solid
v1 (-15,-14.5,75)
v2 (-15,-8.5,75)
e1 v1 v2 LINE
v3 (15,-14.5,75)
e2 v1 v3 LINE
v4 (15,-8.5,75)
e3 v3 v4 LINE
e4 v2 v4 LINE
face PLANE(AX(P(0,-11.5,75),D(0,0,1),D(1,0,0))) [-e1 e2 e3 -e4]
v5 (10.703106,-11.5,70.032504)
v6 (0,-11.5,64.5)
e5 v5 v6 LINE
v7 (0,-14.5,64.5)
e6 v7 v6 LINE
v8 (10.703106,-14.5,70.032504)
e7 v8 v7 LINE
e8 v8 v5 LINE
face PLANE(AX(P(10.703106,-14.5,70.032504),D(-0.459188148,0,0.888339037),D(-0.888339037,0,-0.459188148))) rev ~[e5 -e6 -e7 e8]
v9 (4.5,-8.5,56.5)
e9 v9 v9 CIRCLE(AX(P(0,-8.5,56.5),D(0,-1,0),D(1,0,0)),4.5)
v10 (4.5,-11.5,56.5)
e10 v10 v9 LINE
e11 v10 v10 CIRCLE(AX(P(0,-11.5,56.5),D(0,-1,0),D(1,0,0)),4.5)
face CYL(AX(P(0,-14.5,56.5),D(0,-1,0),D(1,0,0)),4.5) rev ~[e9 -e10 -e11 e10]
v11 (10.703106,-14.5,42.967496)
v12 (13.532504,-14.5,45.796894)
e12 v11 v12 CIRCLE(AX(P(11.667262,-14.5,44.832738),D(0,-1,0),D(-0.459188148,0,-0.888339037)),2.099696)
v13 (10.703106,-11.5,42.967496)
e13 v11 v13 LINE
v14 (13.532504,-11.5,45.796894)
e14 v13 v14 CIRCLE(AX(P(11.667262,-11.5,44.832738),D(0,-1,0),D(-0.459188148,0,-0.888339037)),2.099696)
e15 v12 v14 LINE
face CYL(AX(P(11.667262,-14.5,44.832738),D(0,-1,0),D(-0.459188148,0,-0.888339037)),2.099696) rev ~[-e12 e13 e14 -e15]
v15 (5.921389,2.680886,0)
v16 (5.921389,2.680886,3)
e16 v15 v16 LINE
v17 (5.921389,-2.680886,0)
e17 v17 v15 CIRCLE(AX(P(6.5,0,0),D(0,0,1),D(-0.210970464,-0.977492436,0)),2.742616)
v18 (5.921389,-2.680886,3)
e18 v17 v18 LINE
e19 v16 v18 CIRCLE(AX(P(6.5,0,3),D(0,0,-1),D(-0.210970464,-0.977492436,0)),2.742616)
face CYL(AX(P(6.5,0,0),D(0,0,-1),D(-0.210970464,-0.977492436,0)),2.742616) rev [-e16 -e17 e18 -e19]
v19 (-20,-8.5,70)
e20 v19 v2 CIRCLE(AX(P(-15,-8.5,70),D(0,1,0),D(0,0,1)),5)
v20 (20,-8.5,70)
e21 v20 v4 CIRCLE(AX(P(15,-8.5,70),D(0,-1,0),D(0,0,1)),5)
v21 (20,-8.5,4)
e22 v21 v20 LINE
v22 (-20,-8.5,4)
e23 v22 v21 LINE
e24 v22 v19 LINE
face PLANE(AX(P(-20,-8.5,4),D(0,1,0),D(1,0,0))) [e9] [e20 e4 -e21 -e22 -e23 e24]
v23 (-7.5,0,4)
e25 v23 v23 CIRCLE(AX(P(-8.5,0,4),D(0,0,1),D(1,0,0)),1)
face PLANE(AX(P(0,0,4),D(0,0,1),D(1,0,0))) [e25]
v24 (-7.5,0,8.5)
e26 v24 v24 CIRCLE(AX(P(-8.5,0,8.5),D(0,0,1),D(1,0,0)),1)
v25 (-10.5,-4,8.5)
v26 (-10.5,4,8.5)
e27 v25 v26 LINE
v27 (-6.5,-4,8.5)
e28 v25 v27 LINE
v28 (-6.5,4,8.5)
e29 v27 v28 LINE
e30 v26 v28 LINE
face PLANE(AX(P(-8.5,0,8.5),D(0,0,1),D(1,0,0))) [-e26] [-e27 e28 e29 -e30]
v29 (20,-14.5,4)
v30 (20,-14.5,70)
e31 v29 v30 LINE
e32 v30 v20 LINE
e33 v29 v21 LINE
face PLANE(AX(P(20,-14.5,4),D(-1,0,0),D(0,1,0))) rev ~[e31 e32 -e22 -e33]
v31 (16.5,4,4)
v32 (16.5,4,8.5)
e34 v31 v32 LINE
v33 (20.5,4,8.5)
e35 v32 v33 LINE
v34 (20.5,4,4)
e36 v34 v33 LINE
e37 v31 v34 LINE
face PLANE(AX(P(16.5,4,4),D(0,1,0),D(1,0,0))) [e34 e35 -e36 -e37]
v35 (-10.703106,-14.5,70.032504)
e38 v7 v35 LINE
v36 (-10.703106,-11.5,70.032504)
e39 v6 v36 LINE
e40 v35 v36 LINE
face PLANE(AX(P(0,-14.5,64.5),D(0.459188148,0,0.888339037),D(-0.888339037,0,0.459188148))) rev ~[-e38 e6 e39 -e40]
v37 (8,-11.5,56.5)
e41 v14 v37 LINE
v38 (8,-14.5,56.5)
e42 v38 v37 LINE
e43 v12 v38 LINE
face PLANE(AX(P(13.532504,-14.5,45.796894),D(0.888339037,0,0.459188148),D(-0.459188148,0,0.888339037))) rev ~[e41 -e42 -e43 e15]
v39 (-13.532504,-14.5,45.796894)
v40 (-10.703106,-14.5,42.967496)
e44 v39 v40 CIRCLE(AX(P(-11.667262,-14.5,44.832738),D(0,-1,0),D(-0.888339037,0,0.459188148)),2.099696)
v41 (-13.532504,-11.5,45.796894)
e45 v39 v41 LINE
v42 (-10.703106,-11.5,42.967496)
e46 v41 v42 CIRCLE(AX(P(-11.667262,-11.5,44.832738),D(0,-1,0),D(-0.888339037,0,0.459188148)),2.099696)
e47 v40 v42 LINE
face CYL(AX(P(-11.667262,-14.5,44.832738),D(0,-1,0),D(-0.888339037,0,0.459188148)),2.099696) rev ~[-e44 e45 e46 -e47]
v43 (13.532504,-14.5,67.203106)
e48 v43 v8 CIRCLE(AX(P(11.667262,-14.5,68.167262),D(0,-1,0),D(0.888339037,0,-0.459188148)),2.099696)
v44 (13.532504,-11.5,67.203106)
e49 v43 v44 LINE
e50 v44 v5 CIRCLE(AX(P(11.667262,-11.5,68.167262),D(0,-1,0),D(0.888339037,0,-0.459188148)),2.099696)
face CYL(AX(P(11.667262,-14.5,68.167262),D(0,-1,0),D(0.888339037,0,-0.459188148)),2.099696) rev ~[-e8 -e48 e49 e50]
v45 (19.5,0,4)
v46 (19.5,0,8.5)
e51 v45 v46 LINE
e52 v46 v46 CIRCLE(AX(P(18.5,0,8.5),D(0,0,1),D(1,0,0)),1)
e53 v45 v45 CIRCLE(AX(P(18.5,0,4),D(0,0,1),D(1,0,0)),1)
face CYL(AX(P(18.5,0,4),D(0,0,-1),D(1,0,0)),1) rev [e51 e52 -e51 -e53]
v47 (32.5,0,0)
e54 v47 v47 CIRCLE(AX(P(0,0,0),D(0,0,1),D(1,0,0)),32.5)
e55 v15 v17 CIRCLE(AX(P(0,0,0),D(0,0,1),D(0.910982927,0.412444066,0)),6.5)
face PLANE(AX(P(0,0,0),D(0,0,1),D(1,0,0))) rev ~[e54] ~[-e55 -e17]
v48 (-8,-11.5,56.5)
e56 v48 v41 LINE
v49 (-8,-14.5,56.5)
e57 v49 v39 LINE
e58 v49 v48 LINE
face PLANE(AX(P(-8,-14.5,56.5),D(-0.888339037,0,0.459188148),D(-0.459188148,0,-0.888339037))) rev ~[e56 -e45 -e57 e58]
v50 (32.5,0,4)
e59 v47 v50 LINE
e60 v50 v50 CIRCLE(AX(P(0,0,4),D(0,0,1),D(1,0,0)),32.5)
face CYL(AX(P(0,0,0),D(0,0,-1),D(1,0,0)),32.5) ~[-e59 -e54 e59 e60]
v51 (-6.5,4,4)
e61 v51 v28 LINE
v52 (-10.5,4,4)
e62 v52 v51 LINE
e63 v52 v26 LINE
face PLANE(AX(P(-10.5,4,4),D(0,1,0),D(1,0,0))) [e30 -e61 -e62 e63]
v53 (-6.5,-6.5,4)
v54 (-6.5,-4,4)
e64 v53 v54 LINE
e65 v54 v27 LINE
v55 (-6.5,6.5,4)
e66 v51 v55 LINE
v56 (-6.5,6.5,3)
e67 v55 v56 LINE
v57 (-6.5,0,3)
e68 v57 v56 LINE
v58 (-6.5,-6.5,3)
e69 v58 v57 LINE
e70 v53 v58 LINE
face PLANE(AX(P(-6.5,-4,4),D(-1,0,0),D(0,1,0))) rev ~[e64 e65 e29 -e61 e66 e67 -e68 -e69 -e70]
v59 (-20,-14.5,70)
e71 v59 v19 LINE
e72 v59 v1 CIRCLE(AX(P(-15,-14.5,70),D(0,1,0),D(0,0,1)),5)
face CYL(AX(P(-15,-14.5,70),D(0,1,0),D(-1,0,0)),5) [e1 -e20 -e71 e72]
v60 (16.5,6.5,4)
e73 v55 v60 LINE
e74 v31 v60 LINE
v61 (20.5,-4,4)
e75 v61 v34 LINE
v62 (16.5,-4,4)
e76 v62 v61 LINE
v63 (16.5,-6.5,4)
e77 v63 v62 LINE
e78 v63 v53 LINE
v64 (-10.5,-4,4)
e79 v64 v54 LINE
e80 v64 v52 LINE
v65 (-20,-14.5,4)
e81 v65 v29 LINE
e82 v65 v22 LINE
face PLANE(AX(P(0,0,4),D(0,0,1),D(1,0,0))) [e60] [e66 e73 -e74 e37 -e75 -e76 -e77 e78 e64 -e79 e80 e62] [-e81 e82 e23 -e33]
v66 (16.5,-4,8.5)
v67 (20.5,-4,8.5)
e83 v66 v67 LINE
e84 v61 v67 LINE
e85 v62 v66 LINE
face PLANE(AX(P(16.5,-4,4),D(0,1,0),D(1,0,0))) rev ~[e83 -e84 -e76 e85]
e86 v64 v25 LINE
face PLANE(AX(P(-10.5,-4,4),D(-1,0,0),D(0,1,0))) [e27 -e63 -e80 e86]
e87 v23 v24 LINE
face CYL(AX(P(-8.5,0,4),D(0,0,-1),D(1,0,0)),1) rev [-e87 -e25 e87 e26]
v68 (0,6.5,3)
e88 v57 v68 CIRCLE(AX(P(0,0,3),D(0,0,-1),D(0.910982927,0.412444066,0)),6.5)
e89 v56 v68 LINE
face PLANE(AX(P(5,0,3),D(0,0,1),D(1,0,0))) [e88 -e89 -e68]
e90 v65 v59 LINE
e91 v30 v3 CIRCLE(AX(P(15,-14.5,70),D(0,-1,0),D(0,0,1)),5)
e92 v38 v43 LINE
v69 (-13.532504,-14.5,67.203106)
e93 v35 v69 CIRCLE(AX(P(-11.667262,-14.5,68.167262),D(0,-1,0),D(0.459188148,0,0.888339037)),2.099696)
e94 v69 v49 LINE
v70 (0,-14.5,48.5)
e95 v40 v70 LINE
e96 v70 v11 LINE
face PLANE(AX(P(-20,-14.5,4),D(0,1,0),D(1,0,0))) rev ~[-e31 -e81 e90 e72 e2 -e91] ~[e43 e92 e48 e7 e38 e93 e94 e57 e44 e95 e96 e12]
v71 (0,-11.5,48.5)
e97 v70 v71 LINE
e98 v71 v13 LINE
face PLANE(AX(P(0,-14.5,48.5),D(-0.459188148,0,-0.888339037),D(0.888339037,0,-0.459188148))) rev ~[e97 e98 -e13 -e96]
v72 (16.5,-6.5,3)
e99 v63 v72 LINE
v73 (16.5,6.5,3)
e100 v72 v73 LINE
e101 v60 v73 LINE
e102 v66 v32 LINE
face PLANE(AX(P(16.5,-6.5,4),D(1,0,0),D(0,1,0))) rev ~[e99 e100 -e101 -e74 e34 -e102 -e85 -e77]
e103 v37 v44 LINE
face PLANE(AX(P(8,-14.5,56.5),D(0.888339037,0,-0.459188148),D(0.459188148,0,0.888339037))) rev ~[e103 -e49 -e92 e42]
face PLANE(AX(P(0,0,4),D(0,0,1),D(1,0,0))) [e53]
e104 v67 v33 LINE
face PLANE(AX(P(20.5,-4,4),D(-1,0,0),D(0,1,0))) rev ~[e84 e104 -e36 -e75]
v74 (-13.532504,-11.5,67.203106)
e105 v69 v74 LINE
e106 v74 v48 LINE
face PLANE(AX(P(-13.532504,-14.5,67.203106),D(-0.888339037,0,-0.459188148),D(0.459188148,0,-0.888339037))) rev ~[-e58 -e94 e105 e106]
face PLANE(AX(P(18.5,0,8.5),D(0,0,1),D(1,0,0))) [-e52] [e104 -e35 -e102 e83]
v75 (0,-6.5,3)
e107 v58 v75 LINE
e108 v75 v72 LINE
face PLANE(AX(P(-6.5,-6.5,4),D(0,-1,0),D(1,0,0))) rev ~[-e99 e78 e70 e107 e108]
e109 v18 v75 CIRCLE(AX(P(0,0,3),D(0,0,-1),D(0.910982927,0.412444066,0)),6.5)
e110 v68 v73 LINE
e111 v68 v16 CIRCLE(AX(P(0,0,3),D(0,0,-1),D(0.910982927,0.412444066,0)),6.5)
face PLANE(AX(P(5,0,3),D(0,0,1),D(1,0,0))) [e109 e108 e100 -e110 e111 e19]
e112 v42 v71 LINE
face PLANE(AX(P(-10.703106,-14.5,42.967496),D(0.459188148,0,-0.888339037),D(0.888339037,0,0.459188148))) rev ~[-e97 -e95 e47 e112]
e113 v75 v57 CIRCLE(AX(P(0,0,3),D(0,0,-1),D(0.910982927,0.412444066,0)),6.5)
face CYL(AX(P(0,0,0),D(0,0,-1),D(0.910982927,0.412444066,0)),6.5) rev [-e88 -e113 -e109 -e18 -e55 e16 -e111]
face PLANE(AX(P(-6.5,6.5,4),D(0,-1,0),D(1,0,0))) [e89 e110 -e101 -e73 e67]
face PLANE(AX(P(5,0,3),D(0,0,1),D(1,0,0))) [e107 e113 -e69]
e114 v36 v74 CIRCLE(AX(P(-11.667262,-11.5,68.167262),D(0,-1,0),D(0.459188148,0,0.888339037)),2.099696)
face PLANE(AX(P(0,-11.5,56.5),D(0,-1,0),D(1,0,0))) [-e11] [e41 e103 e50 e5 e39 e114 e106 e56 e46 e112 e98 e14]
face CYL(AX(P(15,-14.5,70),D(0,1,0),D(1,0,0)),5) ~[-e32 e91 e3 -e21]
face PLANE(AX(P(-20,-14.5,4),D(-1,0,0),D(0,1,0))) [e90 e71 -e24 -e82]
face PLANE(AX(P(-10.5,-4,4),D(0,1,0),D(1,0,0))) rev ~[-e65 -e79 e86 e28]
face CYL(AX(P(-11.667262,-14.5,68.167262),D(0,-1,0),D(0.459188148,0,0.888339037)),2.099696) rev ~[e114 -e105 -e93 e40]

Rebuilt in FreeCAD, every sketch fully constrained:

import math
import FreeCAD as App
import Part
import Sketcher

V = App.Vector
Q = App.Units.Quantity


def edges_at(feature, points):
    """Names of the edges that pass closest to the given points."""
    edges = feature.Shape.Edges
    near = lambda p: min(range(len(edges)), key=lambda i: edges[i].distToShape(Part.Vertex(*p))[0])
    return sorted({f"Edge{near(p) + 1}" for p in points})


def add_polygon(sketch, points):
    """Adds a closed chain of lines whose ends are joined by coincident constraints."""
    first, n = sketch.GeometryCount, len(points)
    for a, b in zip(points, points[1:] + points[:1]):
        sketch.addGeometry(Part.LineSegment(App.Vector(*a, 0), App.Vector(*b, 0)), False)
    for i in range(n):
        sketch.addConstraint(Sketcher.Constraint("Coincident", first + i, 2, first + (i + 1) % n, 1))

doc = App.newDocument("Part")
body = doc.addObject("PartDesign::Body", "Body")

# Sketch on XY plane
sketch1 = body.newObject("Sketcher::SketchObject", "Sketch")
sketch1.AttachmentSupport = (doc.getObject("XY_Plane"), [""])
sketch1.MapMode = "FlatFace"
sketch1.addGeometry(Part.Circle(V(0, 0, 0), V(0, 0, 1), 32.5), False)
sketch1.addGeometry(Part.ArcOfCircle(Part.Circle(V(0, 0, 0), V(0, 0, 1), 6.5), math.radians(24), math.radians(336)), False)
sketch1.addGeometry(Part.ArcOfCircle(Part.Circle(V(6.5, 0, 0), V(0, 0, 1), 2.7), math.radians(-102), math.radians(102)), False)
sketch1.addConstraint(Sketcher.Constraint("Coincident", 1, 1, 2, 2))
sketch1.addConstraint(Sketcher.Constraint("Coincident", 2, 1, 1, 2))
sketch1.addConstraint(Sketcher.Constraint("Coincident", 0, 3, -1, 1))
sketch1.addConstraint(Sketcher.Constraint("Coincident", 1, 3, -1, 1))
sketch1.addConstraint(Sketcher.Constraint("PointOnObject", 2, 3, -1))
sketch1.addConstraint(Sketcher.Constraint("Diameter", 0, Q("65 mm")))
sketch1.addConstraint(Sketcher.Constraint("Radius", 1, Q("6.5 mm")))
sketch1.addConstraint(Sketcher.Constraint("DistanceX", -1, 1, 2, 3, Q("6.5 mm")))
sketch1.addConstraint(Sketcher.Constraint("Radius", 2, Q("2.742616 mm")))
pad1 = body.newObject("PartDesign::Pad", "Pad")
pad1.Profile = sketch1
pad1.Length = 4

# Sketch on XY plane
sketch2 = body.newObject("Sketcher::SketchObject", "Sketch001")
sketch2.AttachmentSupport = (doc.getObject("XY_Plane"), [""])
sketch2.MapMode = "FlatFace"
sketch2.AttachmentOffset = App.Placement(V(0, 0, 4), App.Rotation())
add_polygon(sketch2, [(-10.5, 4), (-10.5, -4), (-6.5, -4), (-6.5, 4)])  # lines 0-3
sketch2.addGeometry(Part.Circle(V(-8.5, 0, 0), V(0, 0, 1), 1), False)  # 4
add_polygon(sketch2, [(16.5, 4), (16.5, -4), (20.5, -4), (20.5, 4)])  # lines 5-8
sketch2.addGeometry(Part.Circle(V(18.5, 0, 0), V(0, 0, 1), 1), False)  # 9
sketch2.addConstraint(Sketcher.Constraint("Vertical", 0))
sketch2.addConstraint(Sketcher.Constraint("Horizontal", 1))
sketch2.addConstraint(Sketcher.Constraint("Vertical", 2))
sketch2.addConstraint(Sketcher.Constraint("Horizontal", 3))
sketch2.addConstraint(Sketcher.Constraint("Vertical", 5))
sketch2.addConstraint(Sketcher.Constraint("Horizontal", 6))
sketch2.addConstraint(Sketcher.Constraint("Vertical", 7))
sketch2.addConstraint(Sketcher.Constraint("Horizontal", 8))
sketch2.addConstraint(Sketcher.Constraint("Equal", 4, 9))
sketch2.addConstraint(Sketcher.Constraint("PointOnObject", 4, 3, -1))
sketch2.addConstraint(Sketcher.Constraint("PointOnObject", 9, 3, -1))
sketch2.addConstraint(Sketcher.Constraint("Horizontal", 1, 2, 5, 2))
sketch2.addConstraint(Sketcher.Constraint("Horizontal", 3, 2, 7, 2))
sketch2.addConstraint(Sketcher.Constraint("Equal", 3, 6))
sketch2.addConstraint(Sketcher.Constraint("Diameter", 4, Q("2 mm")))
sketch2.addConstraint(Sketcher.Constraint("DistanceX", 1, 1, 1, 2, Q("4 mm")))
sketch2.addConstraint(Sketcher.Constraint("DistanceY", 0, 2, 0, 1, Q("8 mm")))
sketch2.addConstraint(Sketcher.Constraint("DistanceY", 0, 2, -1, 1, Q("4 mm")))
sketch2.addConstraint(Sketcher.Constraint("DistanceX", 4, 3, 9, 3, Q("27 mm")))
sketch2.addConstraint(Sketcher.Constraint("DistanceX", 0, 2, 4, 3, Q("2 mm")))
sketch2.addConstraint(Sketcher.Constraint("DistanceX", 5, 2, 9, 3, Q("2 mm")))
sketch2.addConstraint(Sketcher.Constraint("DistanceX", 4, 3, -1, 1, Q("8.5 mm")))
pad2 = body.newObject("PartDesign::Pad", "Pad001")
pad2.Profile = sketch2
pad2.Length = 4.5

# Sketch on XY plane
sketch3 = body.newObject("Sketcher::SketchObject", "Sketch002")
sketch3.AttachmentSupport = (doc.getObject("XY_Plane"), [""])
sketch3.MapMode = "FlatFace"
sketch3.AttachmentOffset = App.Placement(V(0, 0, 4), App.Rotation())
add_polygon(sketch3, [(-6, 6), (-6, -6), (16, -6), (16, 6)])  # lines 0-3
sketch3.addConstraint(Sketcher.Constraint("Vertical", 0))
sketch3.addConstraint(Sketcher.Constraint("Horizontal", 1))
sketch3.addConstraint(Sketcher.Constraint("Vertical", 2))
sketch3.addConstraint(Sketcher.Constraint("Horizontal", 3))
sketch3.addConstraint(Sketcher.Constraint("DistanceX", 1, 1, 1, 2, Q("23 mm")))
sketch3.addConstraint(Sketcher.Constraint("DistanceY", 0, 2, 0, 1, Q("13 mm")))
sketch3.addConstraint(Sketcher.Constraint("DistanceX", 0, 2, -1, 1, Q("6.5 mm")))
sketch3.addConstraint(Sketcher.Constraint("DistanceY", 0, 2, -1, 1, Q("6.5 mm")))
pocket1 = body.newObject("PartDesign::Pocket", "Pocket")
pocket1.Profile = sketch3
pocket1.Length = 1

# Sketch on XY plane
sketch4 = body.newObject("Sketcher::SketchObject", "Sketch003")
sketch4.AttachmentSupport = (doc.getObject("XY_Plane"), [""])
sketch4.MapMode = "FlatFace"
sketch4.AttachmentOffset = App.Placement(V(0, 0, 4), App.Rotation())
add_polygon(sketch4, [(-20, -8), (-20, -14), (20, -14), (20, -8)])  # lines 0-3
sketch4.addConstraint(Sketcher.Constraint("Vertical", 0))
sketch4.addConstraint(Sketcher.Constraint("Horizontal", 1))
sketch4.addConstraint(Sketcher.Constraint("Vertical", 2))
sketch4.addConstraint(Sketcher.Constraint("Horizontal", 3))
sketch4.addConstraint(Sketcher.Constraint("DistanceX", 1, 1, 1, 2, Q("40 mm")))
sketch4.addConstraint(Sketcher.Constraint("DistanceY", 0, 2, 0, 1, Q("6 mm")))
sketch4.addConstraint(Sketcher.Constraint("DistanceX", 0, 2, -1, 1, Q("20 mm")))
sketch4.addConstraint(Sketcher.Constraint("DistanceY", 0, 2, -1, 1, Q("14.5 mm")))
pad3 = body.newObject("PartDesign::Pad", "Pad002")
pad3.Profile = sketch4
pad3.Length = 71

# Sketch on XZ plane
sketch5 = body.newObject("Sketcher::SketchObject", "Sketch004")
sketch5.AttachmentSupport = (doc.getObject("XZ_Plane"), [""])
sketch5.MapMode = "FlatFace"
sketch5.AttachmentOffset = App.Placement(V(0, 0, 14.5), App.Rotation())
sketch5.addGeometry(Part.Circle(V(0, 56.5, 0), V(0, 0, 1), 4.5), False)
sketch5.addConstraint(Sketcher.Constraint("PointOnObject", 0, 3, -2))
sketch5.addConstraint(Sketcher.Constraint("Diameter", 0, Q("9 mm")))
sketch5.addConstraint(Sketcher.Constraint("DistanceY", -1, 1, 0, 3, Q("56.5 mm")))
pocket2 = body.newObject("PartDesign::Pocket", "Pocket001")
pocket2.Profile = sketch5
pocket2.Length = 61

# Sketch on XZ plane
sketch6 = body.newObject("Sketcher::SketchObject", "Sketch005")
sketch6.AttachmentSupport = (doc.getObject("XZ_Plane"), [""])
sketch6.MapMode = "FlatFace"
sketch6.AttachmentOffset = App.Placement(V(0, 0, 14.5), App.Rotation())
sketch6.addGeometry(Part.LineSegment(V(0, 64.5, 0), V(-10.703106, 70.032504, 0)), False)
sketch6.addGeometry(Part.ArcOfCircle(Part.Circle(V(-11.667262, 68.167262, 0), V(0, 0, 1), 2.099696), math.radians(62.665267), math.radians(207.334733)), False)
sketch6.addGeometry(Part.LineSegment(V(-13.532504, 67.203106, 0), V(-8, 56.5, 0)), False)
sketch6.addGeometry(Part.LineSegment(V(-8, 56.5, 0), V(-13.532504, 45.796894, 0)), False)
sketch6.addGeometry(Part.ArcOfCircle(Part.Circle(V(-11.667262, 44.832738, 0), V(0, 0, 1), 2.099696), math.radians(152.665267), math.radians(297.334733)), False)
sketch6.addGeometry(Part.LineSegment(V(-10.703106, 42.967496, 0), V(0, 48.5, 0)), False)
sketch6.addGeometry(Part.LineSegment(V(0, 48.5, 0), V(10.703106, 42.967496, 0)), False)
sketch6.addGeometry(Part.ArcOfCircle(Part.Circle(V(11.667262, 44.832738, 0), V(0, 0, 1), 2.099696), math.radians(-117.334733), math.radians(27.334733)), False)
sketch6.addGeometry(Part.LineSegment(V(13.532504, 45.796894, 0), V(8, 56.5, 0)), False)
sketch6.addGeometry(Part.LineSegment(V(8, 56.5, 0), V(13.532504, 67.203106, 0)), False)
sketch6.addGeometry(Part.ArcOfCircle(Part.Circle(V(11.667262, 68.167262, 0), V(0, 0, 1), 2.099696), math.radians(-27.334733), math.radians(117.334733)), False)
sketch6.addGeometry(Part.LineSegment(V(10.703106, 70.032504, 0), V(0, 64.5, 0)), False)
sketch6.addConstraint(Sketcher.Constraint("Coincident", 0, 2, 1, 1))
sketch6.addConstraint(Sketcher.Constraint("Coincident", 1, 2, 2, 1))
sketch6.addConstraint(Sketcher.Constraint("Coincident", 2, 2, 3, 1))
sketch6.addConstraint(Sketcher.Constraint("Coincident", 3, 2, 4, 1))
sketch6.addConstraint(Sketcher.Constraint("Coincident", 4, 2, 5, 1))
sketch6.addConstraint(Sketcher.Constraint("Coincident", 5, 2, 6, 1))
sketch6.addConstraint(Sketcher.Constraint("Coincident", 6, 2, 7, 1))
sketch6.addConstraint(Sketcher.Constraint("Coincident", 7, 2, 8, 1))
sketch6.addConstraint(Sketcher.Constraint("Coincident", 8, 2, 9, 1))
sketch6.addConstraint(Sketcher.Constraint("Coincident", 9, 2, 10, 1))
sketch6.addConstraint(Sketcher.Constraint("Coincident", 10, 2, 11, 1))
sketch6.addConstraint(Sketcher.Constraint("Coincident", 11, 2, 0, 1))
sketch6.addConstraint(Sketcher.Constraint("PointOnObject", 5, 2, -2))
sketch6.addConstraint(Sketcher.Constraint("PointOnObject", 11, 2, -2))
sketch6.addConstraint(Sketcher.Constraint("DistanceX", 2, 2, -1, 1, Q("8 mm")))
sketch6.addConstraint(Sketcher.Constraint("DistanceX", -1, 1, 8, 2, Q("8 mm")))
sketch6.addConstraint(Sketcher.Constraint("DistanceY", 5, 2, 2, 2, Q("8 mm")))
sketch6.addConstraint(Sketcher.Constraint("DistanceY", 5, 2, 8, 2, Q("8 mm")))
sketch6.addConstraint(Sketcher.Constraint("DistanceY", 2, 2, 11, 2, Q("8 mm")))
sketch6.addConstraint(Sketcher.Constraint("DistanceY", -1, 1, 2, 2, Q("56.5 mm")))
sketch6.addConstraint(Sketcher.Constraint("Radius", 1, Q("2.099696 mm")))
sketch6.addConstraint(Sketcher.Constraint("Radius", 4, Q("2.099696 mm")))
sketch6.addConstraint(Sketcher.Constraint("Radius", 7, Q("2.099696 mm")))
sketch6.addConstraint(Sketcher.Constraint("Radius", 10, Q("2.099696 mm")))
sketch6.addConstraint(Sketcher.Constraint("DistanceX", 1, 2, 0, 2, Q("2.829398 mm")))
sketch6.addConstraint(Sketcher.Constraint("DistanceY", 1, 2, 0, 2, Q("2.829398 mm")))
sketch6.addConstraint(Sketcher.Constraint("DistanceX", 3, 2, 0, 2, Q("2.829398 mm")))
sketch6.addConstraint(Sketcher.Constraint("DistanceX", 3, 2, 4, 2, Q("2.829398 mm")))
sketch6.addConstraint(Sketcher.Constraint("DistanceY", 4, 2, 3, 2, Q("2.829398 mm")))
sketch6.addConstraint(Sketcher.Constraint("DistanceX", 6, 2, 7, 2, Q("2.829398 mm")))
sketch6.addConstraint(Sketcher.Constraint("DistanceY", 6, 2, 7, 2, Q("2.829398 mm")))
sketch6.addConstraint(Sketcher.Constraint("DistanceX", 10, 2, 9, 2, Q("2.829398 mm")))
sketch6.addConstraint(Sketcher.Constraint("DistanceY", 9, 2, 10, 2, Q("2.829398 mm")))
sketch6.addConstraint(Sketcher.Constraint("DistanceX", 1, 3, -1, 1, Q("11.667262 mm")))
sketch6.addConstraint(Sketcher.Constraint("DistanceY", -1, 1, 1, 3, Q("68.167262 mm")))
sketch6.addConstraint(Sketcher.Constraint("DistanceY", -1, 1, 4, 3, Q("44.832738 mm")))
sketch6.addConstraint(Sketcher.Constraint("DistanceX", -1, 1, 7, 3, Q("11.667262 mm")))
sketch6.addConstraint(Sketcher.Constraint("DistanceY", -1, 1, 7, 3, Q("44.832738 mm")))
sketch6.addConstraint(Sketcher.Constraint("DistanceX", -1, 1, 10, 3, Q("11.667262 mm")))
sketch6.addConstraint(Sketcher.Constraint("DistanceY", -1, 1, 10, 3, Q("68.167262 mm")))
pocket3 = body.newObject("PartDesign::Pocket", "Pocket002")
pocket3.Profile = sketch6
pocket3.Length = 3
doc.recompute()

fillet = body.newObject("PartDesign::Fillet", "Fillet")
fillet.Base = (pocket3, edges_at(pocket3, [(20, -11.5, 75), (-20, -11.5, 75)]))
fillet.Radius = 5

doc.recompute()
